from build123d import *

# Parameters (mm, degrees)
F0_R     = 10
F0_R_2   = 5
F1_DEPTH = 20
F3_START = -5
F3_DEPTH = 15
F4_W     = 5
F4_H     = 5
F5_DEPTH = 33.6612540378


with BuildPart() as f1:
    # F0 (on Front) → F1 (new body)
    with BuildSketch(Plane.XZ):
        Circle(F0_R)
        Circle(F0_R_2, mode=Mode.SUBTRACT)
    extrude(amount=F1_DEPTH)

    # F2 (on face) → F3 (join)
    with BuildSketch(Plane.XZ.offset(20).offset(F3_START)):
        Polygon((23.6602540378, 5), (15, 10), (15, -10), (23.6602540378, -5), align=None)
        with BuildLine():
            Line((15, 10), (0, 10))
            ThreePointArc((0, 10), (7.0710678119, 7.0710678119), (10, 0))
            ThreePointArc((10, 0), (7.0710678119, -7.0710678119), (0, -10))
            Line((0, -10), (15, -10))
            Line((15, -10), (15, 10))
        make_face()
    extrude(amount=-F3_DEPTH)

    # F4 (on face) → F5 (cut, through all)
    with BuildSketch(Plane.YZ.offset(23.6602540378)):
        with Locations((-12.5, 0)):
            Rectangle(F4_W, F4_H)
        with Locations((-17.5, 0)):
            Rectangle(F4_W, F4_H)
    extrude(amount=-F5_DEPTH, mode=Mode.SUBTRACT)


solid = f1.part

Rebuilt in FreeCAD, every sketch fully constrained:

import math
import FreeCAD as App
import Part
import Sketcher
Q = App.Units.Quantity

doc = App.newDocument("Part")
body = doc.addObject("PartDesign::Body", "Body")

sketch1 = doc.addObject("Sketcher::SketchObject", "Sketch")
body.addObject(sketch1)
sketch1.AttachmentSupport = (doc.XZ_Plane, [""])
sketch1.MapMode = "FlatFace"
sketch1.addGeometry([
    Part.Circle(App.Vector(0, 0, 0), App.Vector(0, 0, 1), 10),
    Part.Circle(App.Vector(0, 0, 0), App.Vector(0, 0, 1), 5),
], False)
sketch1.addConstraint([
    Sketcher.Constraint("Coincident", 0, 3, -1, 1),
    Sketcher.Constraint("Coincident", 1, 3, -1, 1),
    Sketcher.Constraint("Diameter", 0, 20.0),
    Sketcher.Constraint("Diameter", 1, 10.0),
])
pad1 = doc.addObject("PartDesign::Pad", "Pad")
body.addObject(pad1)
pad1.Profile = sketch1
pad1.Length = 20

sketch2 = doc.addObject("Sketcher::SketchObject", "Sketch001")
body.addObject(sketch2)
sketch2.AttachmentSupport = (doc.XZ_Plane, [""])
sketch2.MapMode = "FlatFace"
sketch2.AttachmentOffset = App.Placement(App.Vector(0, 0, 15), App.Rotation())
sketch2.addGeometry([
    Part.LineSegment(App.Vector(24, 5, 0), App.Vector(15, 10, 0)),
    Part.LineSegment(App.Vector(15, 10, 0), App.Vector(0, 10, 0)),
    Part.ArcOfCircle(Part.Circle(App.Vector(0, 0, 0), App.Vector(0, 0, 1), 10), math.radians(0), math.radians(90)),
    Part.ArcOfCircle(Part.Circle(App.Vector(0, 0, 0), App.Vector(0, 0, 1), 10), math.radians(-90), math.radians(0)),
    Part.LineSegment(App.Vector(0, -10, 0), App.Vector(15, -10, 0)),
    Part.LineSegment(App.Vector(15, -10, 0), App.Vector(24, -5, 0)),
    Part.LineSegment(App.Vector(24, -5, 0), App.Vector(24, 5, 0)),
], False)
sketch2.addConstraint([
    Sketcher.Constraint("Coincident", 0, 2, 1, 1),
    Sketcher.Constraint("Tangent", 1, 2, 2, 2),
    Sketcher.Constraint("Tangent", 2, 1, 3, 2),
    Sketcher.Constraint("Tangent", 3, 1, 4, 1),
    Sketcher.Constraint("Coincident", 4, 2, 5, 1),
    Sketcher.Constraint("Coincident", 5, 2, 6, 1),
    Sketcher.Constraint("Coincident", 6, 2, 0, 1),
    Sketcher.Constraint("Horizontal", 1),
    Sketcher.Constraint("Horizontal", 4),
    Sketcher.Constraint("Vertical", 6),
    Sketcher.Constraint("Coincident", 2, 3, -1, 1),
    Sketcher.Constraint("Equal", 2, 3),
    Sketcher.Constraint("PointOnObject", 2, 1, -1),
    Sketcher.Constraint("Vertical", 0, 2, 4, 2),
    Sketcher.Constraint("Equal", 0, 5),
    Sketcher.Constraint("Radius", 2, 10.0),
    Sketcher.Constraint("DistanceX", 1, 2, 1, 1, 15.0),
    Sketcher.Constraint("DistanceY", 6, 1, 6, 2, 10.0),
    Sketcher.Constraint("Angle", 0, Q("150 deg")),
])
pad2 = doc.addObject("PartDesign::Pad", "Pad001")
body.addObject(pad2)
pad2.Profile = sketch2
pad2.Length = 15
pad2.Reversed = True

sketch3 = doc.addObject("Sketcher::SketchObject", "Sketch002")
body.addObject(sketch3)
sketch3.AttachmentSupport = (doc.YZ_Plane, [""])
sketch3.MapMode = "FlatFace"
sketch3.AttachmentOffset = App.Placement(App.Vector(0, 0, 23.660254), App.Rotation())
sketch3.addGeometry([
    Part.LineSegment(App.Vector(-10, -2, 0), App.Vector(-10, 2, 0)),
    Part.LineSegment(App.Vector(-10, 2, 0), App.Vector(-20, 2, 0)),
    Part.LineSegment(App.Vector(-20, 2, 0), App.Vector(-20, -2, 0)),
    Part.LineSegment(App.Vector(-20, -2, 0), App.Vector(-10, -2, 0)),
], False)
sketch3.addConstraint([
    Sketcher.Constraint("Coincident", 0, 2, 1, 1),
    Sketcher.Constraint("Coincident", 1, 2, 2, 1),
    Sketcher.Constraint("Coincident", 2, 2, 3, 1),
    Sketcher.Constraint("Coincident", 3, 2, 0, 1),
    Sketcher.Constraint("Vertical", 0),
    Sketcher.Constraint("Horizontal", 1),
    Sketcher.Constraint("Vertical", 2),
    Sketcher.Constraint("Horizontal", 3),
    Sketcher.Constraint("DistanceX", 1, 2, 1, 1, 10.0),
    Sketcher.Constraint("DistanceY", 0, 1, 0, 2, 5.0),
    Sketcher.Constraint("DistanceX", 0, 2, -1, 1, 10.0),
    Sketcher.Constraint("DistanceY", -1, 1, 0, 2, 2.5),
])
pocket1 = doc.addObject("PartDesign::Pocket", "Pocket")
body.addObject(pocket1)
pocket1.Profile = sketch3
pocket1.Type = "ThroughAll"

doc.recompute()
